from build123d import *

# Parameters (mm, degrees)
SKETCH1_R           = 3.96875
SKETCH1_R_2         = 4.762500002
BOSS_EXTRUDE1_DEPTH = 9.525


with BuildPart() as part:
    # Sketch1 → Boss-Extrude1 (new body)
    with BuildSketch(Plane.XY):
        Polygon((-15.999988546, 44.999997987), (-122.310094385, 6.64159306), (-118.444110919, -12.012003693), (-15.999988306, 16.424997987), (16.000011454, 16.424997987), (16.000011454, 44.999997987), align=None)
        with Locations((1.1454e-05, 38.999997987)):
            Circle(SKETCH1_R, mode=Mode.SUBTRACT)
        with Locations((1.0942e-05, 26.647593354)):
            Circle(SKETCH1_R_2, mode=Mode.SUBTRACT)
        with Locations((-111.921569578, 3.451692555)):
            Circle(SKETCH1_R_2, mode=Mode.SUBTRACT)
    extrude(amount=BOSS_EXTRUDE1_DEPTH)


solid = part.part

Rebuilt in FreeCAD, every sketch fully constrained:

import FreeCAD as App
import Part
import Sketcher
from FreeCAD import Vector
Q = App.Units.Quantity

doc = App.newDocument("Part")
body = doc.addObject("PartDesign::Body", "Body")

sketch1 = doc.addObject("Sketcher::SketchObject", "Sketch")
body.addObject(sketch1)
sketch1.AttachmentSupport = (doc.XY_Plane, [""])
sketch1.MapMode = "FlatFace"
sketch1.addGeometry(Part.LineSegment(Vector(-16, 45, 0), Vector(-122.3, 6.6, 0)), False)
sketch1.addGeometry(Part.LineSegment(Vector(-122.3, 6.6, 0), Vector(-118.4, -12, 0)), False)
sketch1.addGeometry(Part.LineSegment(Vector(-118.4, -12, 0), Vector(-16, 16.4, 0)), False)
sketch1.addGeometry(Part.LineSegment(Vector(-16, 16.4, 0), Vector(16, 16.4, 0)), False)
sketch1.addGeometry(Part.LineSegment(Vector(16, 16.4, 0), Vector(16, 45, 0)), False)
sketch1.addGeometry(Part.LineSegment(Vector(16, 45, 0), Vector(-16, 45, 0)), False)
sketch1.addGeometry(Part.Circle(Vector(-111.9, 3.5, 0), Vector(0, 0, 1), 4.8), False)
sketch1.addGeometry(Part.Circle(Vector(0, 26.6, 0), Vector(0, 0, 1), 4.8), False)
sketch1.addGeometry(Part.Circle(Vector(0, 39, 0), Vector(0, 0, 1), 4), False)
sketch1.addConstraint(Sketcher.Constraint("Coincident", 0, 2, 1, 1))
sketch1.addConstraint(Sketcher.Constraint("Coincident", 1, 2, 2, 1))
sketch1.addConstraint(Sketcher.Constraint("Coincident", 2, 2, 3, 1))
sketch1.addConstraint(Sketcher.Constraint("Coincident", 3, 2, 4, 1))
sketch1.addConstraint(Sketcher.Constraint("Coincident", 4, 2, 5, 1))
sketch1.addConstraint(Sketcher.Constraint("Coincident", 5, 2, 0, 1))
sketch1.addConstraint(Sketcher.Constraint("Horizontal", 3))
sketch1.addConstraint(Sketcher.Constraint("Vertical", 4))
sketch1.addConstraint(Sketcher.Constraint("Horizontal", 5))
sketch1.addConstraint(Sketcher.Constraint("Equal", 6, 7))
sketch1.addConstraint(Sketcher.Constraint("Vertical", 7, 3, 8, 3))
sketch1.addConstraint(Sketcher.Constraint("Vertical", 2, 2, 5, 2))
sketch1.addConstraint(Sketcher.Constraint("Diameter", 6, Q("0.375 in")))
sketch1.addConstraint(Sketcher.Constraint("Diameter", 8, Q("0.3125 in")))
sketch1.addConstraint(Sketcher.Constraint("Distance", 1, Q("0.75 in")))
sketch1.addConstraint(Sketcher.Constraint("DistanceY", 4, 1, 4, 2, Q("1.125 in")))
sketch1.addConstraint(Sketcher.Constraint("DistanceX", 3, 1, 3, 2, Q("32 mm")))
sketch1.addConstraint(Sketcher.Constraint("DistanceY", 6, 3, 7, 3, Q("23.195901 mm")))
sketch1.addConstraint(Sketcher.Constraint("DistanceY", 6, 3, 0, 2, Q("3.189901 mm")))
sketch1.addConstraint(Sketcher.Constraint("DistanceY", 1, 2, 8, 3, Q("51.012002 mm")))
sketch1.addConstraint(Sketcher.Constraint("DistanceX", 2, 2, 7, 3, Q("15.999999 mm")))
sketch1.addConstraint(Sketcher.Constraint("DistanceY", 2, 2, 8, 3, Q("22.575 mm")))
sketch1.addConstraint(Sketcher.Constraint("Distance", 0, Q("113.018608 mm")))
sketch1.addConstraint(Sketcher.Constraint("DistanceX", 6, 3, -1, 1, Q("111.92157 mm")))
sketch1.addConstraint(Sketcher.Constraint("DistanceX", 1, 2, -1, 1, Q("118.444111 mm")))
sketch1.addConstraint(Sketcher.Constraint("DistanceX", 2, 2, -1, 1, Q("15.999988 mm")))
sketch1.addConstraint(Sketcher.Constraint("DistanceY", -1, 1, 6, 3, Q("3.451693 mm")))
pad1 = doc.addObject("PartDesign::Pad", "Pad")
body.addObject(pad1)
pad1.Profile = sketch1
pad1.Length = Q("0.375 in")

doc.recompute()
